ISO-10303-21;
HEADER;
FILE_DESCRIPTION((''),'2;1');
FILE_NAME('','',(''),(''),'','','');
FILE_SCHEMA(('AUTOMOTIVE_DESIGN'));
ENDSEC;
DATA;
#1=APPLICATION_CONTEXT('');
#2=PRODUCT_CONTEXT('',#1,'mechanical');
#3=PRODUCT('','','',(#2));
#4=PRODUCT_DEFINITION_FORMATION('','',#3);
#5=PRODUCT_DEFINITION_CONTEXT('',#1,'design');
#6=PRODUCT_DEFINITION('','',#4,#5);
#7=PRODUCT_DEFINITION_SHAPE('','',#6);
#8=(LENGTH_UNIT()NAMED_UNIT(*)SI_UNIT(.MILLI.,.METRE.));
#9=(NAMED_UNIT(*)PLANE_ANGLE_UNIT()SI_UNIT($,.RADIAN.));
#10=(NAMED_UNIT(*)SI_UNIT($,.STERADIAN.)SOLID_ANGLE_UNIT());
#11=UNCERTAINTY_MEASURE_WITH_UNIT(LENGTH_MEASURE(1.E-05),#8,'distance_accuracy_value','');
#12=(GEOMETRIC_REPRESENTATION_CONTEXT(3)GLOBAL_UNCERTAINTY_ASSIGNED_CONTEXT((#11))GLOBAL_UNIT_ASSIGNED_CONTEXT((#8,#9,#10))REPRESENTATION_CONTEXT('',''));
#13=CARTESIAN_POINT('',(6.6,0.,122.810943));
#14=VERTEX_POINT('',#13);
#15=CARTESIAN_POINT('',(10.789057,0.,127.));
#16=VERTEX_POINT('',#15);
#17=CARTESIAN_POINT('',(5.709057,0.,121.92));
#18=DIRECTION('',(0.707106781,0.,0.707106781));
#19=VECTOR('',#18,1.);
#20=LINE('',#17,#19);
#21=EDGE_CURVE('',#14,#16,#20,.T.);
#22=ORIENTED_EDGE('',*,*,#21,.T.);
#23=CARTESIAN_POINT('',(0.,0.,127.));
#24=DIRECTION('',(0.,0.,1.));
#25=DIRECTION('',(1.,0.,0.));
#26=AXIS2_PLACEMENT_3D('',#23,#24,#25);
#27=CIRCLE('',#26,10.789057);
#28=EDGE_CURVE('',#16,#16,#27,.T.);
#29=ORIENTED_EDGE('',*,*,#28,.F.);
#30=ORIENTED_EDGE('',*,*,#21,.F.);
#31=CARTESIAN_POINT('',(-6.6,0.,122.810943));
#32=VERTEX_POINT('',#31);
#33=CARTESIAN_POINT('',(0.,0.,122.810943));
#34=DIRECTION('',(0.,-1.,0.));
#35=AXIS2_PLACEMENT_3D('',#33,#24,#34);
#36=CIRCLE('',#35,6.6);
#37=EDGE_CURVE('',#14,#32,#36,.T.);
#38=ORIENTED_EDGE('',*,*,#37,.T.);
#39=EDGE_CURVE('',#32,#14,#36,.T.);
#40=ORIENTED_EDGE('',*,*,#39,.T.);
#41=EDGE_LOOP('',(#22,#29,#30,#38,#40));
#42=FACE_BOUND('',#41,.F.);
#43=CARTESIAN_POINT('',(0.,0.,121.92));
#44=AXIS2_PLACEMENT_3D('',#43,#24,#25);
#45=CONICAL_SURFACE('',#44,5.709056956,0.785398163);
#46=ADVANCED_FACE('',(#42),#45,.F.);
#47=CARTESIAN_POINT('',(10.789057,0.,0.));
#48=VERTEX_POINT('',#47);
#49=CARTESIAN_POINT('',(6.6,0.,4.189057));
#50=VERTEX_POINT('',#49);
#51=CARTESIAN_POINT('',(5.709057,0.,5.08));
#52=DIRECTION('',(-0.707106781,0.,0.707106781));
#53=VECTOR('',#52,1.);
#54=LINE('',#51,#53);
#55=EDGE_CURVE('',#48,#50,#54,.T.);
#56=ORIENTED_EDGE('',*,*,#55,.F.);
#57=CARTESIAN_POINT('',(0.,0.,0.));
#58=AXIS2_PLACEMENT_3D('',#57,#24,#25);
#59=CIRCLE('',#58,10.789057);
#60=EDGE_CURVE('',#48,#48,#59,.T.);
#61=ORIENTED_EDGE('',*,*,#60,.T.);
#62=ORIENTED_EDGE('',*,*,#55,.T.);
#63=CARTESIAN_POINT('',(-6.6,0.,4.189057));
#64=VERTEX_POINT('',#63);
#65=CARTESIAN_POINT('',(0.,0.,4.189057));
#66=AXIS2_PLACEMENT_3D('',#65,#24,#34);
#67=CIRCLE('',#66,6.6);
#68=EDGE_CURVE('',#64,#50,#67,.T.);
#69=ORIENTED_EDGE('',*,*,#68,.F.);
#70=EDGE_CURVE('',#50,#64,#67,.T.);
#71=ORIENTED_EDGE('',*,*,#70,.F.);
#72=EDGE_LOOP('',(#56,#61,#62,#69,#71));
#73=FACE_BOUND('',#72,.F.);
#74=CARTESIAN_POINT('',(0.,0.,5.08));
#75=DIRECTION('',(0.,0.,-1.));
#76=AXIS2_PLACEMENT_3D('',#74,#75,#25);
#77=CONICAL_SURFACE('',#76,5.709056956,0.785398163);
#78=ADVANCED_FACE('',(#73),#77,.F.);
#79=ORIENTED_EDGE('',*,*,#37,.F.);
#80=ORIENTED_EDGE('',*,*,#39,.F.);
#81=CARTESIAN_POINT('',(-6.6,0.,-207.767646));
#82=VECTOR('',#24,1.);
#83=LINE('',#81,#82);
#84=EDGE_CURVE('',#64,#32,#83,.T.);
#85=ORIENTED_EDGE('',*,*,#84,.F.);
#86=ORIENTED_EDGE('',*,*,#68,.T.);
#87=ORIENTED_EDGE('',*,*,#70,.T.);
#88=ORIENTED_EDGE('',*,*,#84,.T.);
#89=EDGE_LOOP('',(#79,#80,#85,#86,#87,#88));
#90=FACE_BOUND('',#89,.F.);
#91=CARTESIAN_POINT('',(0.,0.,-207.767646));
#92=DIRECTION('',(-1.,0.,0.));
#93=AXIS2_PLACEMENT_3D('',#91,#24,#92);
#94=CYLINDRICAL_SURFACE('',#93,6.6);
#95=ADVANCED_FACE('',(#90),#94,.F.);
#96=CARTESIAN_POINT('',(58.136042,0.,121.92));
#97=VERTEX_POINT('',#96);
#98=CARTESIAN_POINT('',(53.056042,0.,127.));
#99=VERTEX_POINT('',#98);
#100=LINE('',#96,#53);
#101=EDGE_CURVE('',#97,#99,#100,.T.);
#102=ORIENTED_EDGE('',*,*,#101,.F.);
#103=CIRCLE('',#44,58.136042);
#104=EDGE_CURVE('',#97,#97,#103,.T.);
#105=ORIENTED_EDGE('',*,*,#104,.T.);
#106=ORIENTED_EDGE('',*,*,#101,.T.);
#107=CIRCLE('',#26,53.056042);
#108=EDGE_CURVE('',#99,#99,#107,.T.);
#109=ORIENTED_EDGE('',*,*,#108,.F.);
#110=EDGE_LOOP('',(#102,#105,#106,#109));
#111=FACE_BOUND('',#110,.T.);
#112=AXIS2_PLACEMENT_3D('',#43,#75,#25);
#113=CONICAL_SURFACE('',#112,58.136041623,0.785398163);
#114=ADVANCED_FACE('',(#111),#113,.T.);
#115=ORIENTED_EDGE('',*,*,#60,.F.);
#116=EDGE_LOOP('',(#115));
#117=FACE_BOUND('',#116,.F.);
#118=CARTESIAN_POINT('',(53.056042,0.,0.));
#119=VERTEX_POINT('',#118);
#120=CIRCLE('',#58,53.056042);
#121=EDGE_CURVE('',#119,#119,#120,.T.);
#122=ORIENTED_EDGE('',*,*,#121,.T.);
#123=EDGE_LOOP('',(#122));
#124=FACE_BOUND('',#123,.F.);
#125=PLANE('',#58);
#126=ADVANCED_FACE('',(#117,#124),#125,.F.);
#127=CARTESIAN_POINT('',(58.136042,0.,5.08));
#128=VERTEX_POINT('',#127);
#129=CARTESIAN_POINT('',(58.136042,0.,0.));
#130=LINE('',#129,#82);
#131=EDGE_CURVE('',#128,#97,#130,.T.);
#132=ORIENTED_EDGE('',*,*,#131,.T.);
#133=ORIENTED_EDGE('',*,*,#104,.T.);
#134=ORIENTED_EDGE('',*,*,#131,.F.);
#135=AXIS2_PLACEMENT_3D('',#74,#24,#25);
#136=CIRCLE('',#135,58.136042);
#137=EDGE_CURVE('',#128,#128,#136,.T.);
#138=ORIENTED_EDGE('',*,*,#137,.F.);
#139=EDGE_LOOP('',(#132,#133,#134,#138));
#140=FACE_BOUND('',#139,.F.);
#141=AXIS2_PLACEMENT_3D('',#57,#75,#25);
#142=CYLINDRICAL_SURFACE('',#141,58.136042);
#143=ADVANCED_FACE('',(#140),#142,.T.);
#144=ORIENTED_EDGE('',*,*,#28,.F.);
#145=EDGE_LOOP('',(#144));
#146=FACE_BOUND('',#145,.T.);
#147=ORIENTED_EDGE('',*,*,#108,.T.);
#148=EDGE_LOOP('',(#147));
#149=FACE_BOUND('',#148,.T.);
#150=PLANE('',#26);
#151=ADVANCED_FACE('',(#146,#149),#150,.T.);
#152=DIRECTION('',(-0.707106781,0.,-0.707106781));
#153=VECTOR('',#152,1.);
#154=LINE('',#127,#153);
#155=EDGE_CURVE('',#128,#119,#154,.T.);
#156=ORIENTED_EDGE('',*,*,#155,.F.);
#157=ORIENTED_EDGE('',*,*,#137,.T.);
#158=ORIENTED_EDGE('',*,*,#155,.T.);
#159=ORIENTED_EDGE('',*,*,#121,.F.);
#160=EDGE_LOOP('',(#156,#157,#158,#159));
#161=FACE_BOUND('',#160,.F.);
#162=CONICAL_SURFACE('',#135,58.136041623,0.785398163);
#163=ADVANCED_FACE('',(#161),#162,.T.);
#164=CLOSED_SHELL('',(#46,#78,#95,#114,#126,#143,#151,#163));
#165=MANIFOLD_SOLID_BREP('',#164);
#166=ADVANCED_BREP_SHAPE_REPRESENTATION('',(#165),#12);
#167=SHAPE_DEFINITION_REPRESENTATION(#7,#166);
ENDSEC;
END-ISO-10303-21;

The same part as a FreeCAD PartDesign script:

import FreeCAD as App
import Part
import Sketcher

V = App.Vector
Q = App.Units.Quantity


def edges_at(feature, points):
    """Names of the edges that pass closest to the given points."""
    edges = feature.Shape.Edges
    near = lambda p: min(range(len(edges)), key=lambda i: edges[i].distToShape(Part.Vertex(*p))[0])
    return sorted({f"Edge{near(p) + 1}" for p in points})

doc = App.newDocument("Part")
body = doc.addObject("PartDesign::Body", "Body")

sketch1 = body.newObject("Sketcher::SketchObject", "Sketch")
sketch1.AttachmentSupport = (doc.getObject("XY_Plane"), [""])
sketch1.MapMode = "FlatFace"
sketch1.addGeometry([
    Part.Circle(V(0, 0, 0), V(0, 0, 1), 58.136042),
    Part.Circle(V(0, 0, 0), V(0, 0, 1), 5.709057),
], False)
sketch1.addConstraint([
    Sketcher.Constraint("Coincident", 0, 3, -1, 1),
    Sketcher.Constraint("Coincident", 1, 3, -1, 1),
    Sketcher.Constraint("Diameter", 0, 116.272083),
    Sketcher.Constraint("Diameter", 1, 11.418114),
])
pad1 = body.newObject("PartDesign::Pad", "Pad")
pad1.Profile = sketch1
pad1.Length = Q("5 in")
doc.recompute()

chamfer = body.newObject("PartDesign::Chamfer", "Chamfer")
chamfer.Base = (pad1, edges_at(pad1, [(-58.136, 0, 127), (-5.709, 0, 127)]))
chamfer.Size = Q("0.2 in")
doc.recompute()

chamfer2 = body.newObject("PartDesign::Chamfer", "Chamfer001")
chamfer2.Base = (chamfer, edges_at(chamfer, [(-58.136, 0, 0), (-5.709, 0, 0)]))
chamfer2.Size = Q("0.2 in")

sketch2 = body.newObject("Sketcher::SketchObject", "Sketch001")
sketch2.AttachmentSupport = (doc.getObject("XY_Plane"), [""])
sketch2.MapMode = "FlatFace"
sketch2.addGeometry(Part.Circle(V(0, 0, 0), V(0, 0, 1), 6.6), False)
sketch2.addConstraint([
    Sketcher.Constraint("Coincident", 0, 3, -1, 1),
    Sketcher.Constraint("Diameter", 0, 13.2),
])
doc.recompute()
hole = body.newObject("PartDesign::Hole", "Hole")
hole.Profile = sketch2
hole.ThreadType = "None"
hole.Diameter = 13.2
hole.DepthType = "ThroughAll"
hole.Reversed = True

doc.recompute()
